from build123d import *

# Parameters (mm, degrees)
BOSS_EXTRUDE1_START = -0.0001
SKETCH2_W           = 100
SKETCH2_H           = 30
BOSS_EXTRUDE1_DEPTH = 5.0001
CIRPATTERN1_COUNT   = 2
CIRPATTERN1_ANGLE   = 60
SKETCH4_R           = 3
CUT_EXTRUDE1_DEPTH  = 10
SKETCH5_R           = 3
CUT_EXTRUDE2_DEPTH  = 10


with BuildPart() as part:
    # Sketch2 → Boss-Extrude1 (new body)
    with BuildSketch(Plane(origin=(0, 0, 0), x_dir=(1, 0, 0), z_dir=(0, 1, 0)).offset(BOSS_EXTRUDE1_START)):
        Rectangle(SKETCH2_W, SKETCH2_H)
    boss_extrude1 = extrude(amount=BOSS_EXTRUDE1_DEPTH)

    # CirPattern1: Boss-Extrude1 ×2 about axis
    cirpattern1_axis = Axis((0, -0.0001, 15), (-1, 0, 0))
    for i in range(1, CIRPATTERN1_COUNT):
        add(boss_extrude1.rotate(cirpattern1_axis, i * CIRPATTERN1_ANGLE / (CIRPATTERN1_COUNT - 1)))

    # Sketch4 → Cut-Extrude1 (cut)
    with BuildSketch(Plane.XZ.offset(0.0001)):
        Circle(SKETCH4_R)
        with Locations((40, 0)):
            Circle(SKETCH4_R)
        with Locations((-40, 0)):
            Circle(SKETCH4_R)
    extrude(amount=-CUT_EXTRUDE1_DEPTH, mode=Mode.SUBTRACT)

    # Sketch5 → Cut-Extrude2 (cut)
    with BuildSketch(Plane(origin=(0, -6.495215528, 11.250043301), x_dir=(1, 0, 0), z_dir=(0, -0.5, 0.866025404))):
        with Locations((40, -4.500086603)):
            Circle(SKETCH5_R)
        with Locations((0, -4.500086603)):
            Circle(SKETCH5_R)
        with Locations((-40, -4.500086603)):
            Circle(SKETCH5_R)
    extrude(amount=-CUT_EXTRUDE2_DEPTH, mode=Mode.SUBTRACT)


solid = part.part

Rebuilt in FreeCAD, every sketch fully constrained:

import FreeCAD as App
import Part
import Sketcher

V = App.Vector
Q = App.Units.Quantity


def add_polygon(sketch, points):
    """Adds a closed chain of lines whose ends are joined by coincident constraints."""
    first, n = sketch.GeometryCount, len(points)
    for a, b in zip(points, points[1:] + points[:1]):
        sketch.addGeometry(Part.LineSegment(App.Vector(*a, 0), App.Vector(*b, 0)), False)
    for i in range(n):
        sketch.addConstraint(Sketcher.Constraint("Coincident", first + i, 2, first + (i + 1) % n, 1))

doc = App.newDocument("Part")
params = doc.addObject("Spreadsheet::Sheet", "Params")
for row, (alias, value) in enumerate([
    ("sketch1_width", "100 mm"),
    ("sketch1_height", "30 mm"),
    ("pad1_length", "5.0001 mm"),
    ("sketch2_diameter", "6 mm"),
    ("pocket1_length", "10 mm"),
    ("sketch3_diameter", "6 mm"),
    ("pocket2_length", "10 mm"),
], start=1):
    params.set(f"A{row}", alias)
    params.set(f"B{row}", "=" + value)
    params.setAlias(f"B{row}", alias)

body = doc.addObject("PartDesign::Body", "Body")

# Sketch on XZ plane
sketch1 = doc.addObject("Sketcher::SketchObject", "Sketch")
body.addObject(sketch1)
sketch1.AttachmentSupport = (doc.XZ_Plane, [""])
sketch1.MapMode = "FlatFace"
sketch1.AttachmentOffset = App.Placement(V(0, 0, 0.0001), App.Rotation())
add_polygon(sketch1, [(-50, -15), (-50, 15), (50, 15), (50, -15)])  # lines 0-3
sketch1.addConstraint([
    Sketcher.Constraint("Vertical", 0),
    Sketcher.Constraint("Horizontal", 1),
    Sketcher.Constraint("Vertical", 2),
    Sketcher.Constraint("Horizontal", 3),
    Sketcher.Constraint("Symmetric", 0, 2, 2, 2, -1, 1),
    Sketcher.Constraint("DistanceX", 1, 1, 1, 2, Q("100 mm")),
    Sketcher.Constraint("DistanceY", 0, 1, 0, 2, Q("30 mm")),
])
sketch1.setExpression("Constraints[9]", "Params.sketch1_width")
sketch1.setExpression("Constraints[10]", "Params.sketch1_height")
pad1 = doc.addObject("PartDesign::Pad", "Pad")
body.addObject(pad1)
pad1.Profile = sketch1
pad1.setExpression("Length", "Params.pad1_length")
pad1.Reversed = True
doc.recompute()

datumline = doc.addObject("PartDesign::Line", "DatumLine")
body.addObject(datumline)
datumline.Placement = App.Placement(V(0, -0.0001, 15), App.Rotation(V(0, 0, 1), V(-1, 0, 0)))
polarpattern = doc.addObject("PartDesign::PolarPattern", "PolarPattern")
body.addObject(polarpattern)
polarpattern.Originals = [pad1]
polarpattern.Axis = (datumline, [""])
polarpattern.Angle = 60
polarpattern.Occurrences = 2
body.Tip = polarpattern

# Sketch on XZ plane
sketch2 = doc.addObject("Sketcher::SketchObject", "Sketch001")
body.addObject(sketch2)
sketch2.AttachmentSupport = (doc.XZ_Plane, [""])
sketch2.MapMode = "FlatFace"
sketch2.AttachmentOffset = App.Placement(V(0, 0, 0.0001), App.Rotation())
sketch2.addGeometry([
    Part.Circle(V(0, 0, 0), V(0, 0, 1), 3),
    Part.Circle(V(40, 0, 0), V(0, 0, 1), 3),
    Part.Circle(V(-40, 0, 0), V(0, 0, 1), 3),
], False)
sketch2.addConstraint([
    Sketcher.Constraint("Coincident", 0, 3, -1, 1),
    Sketcher.Constraint("Equal", 0, 1),
    Sketcher.Constraint("Equal", 1, 2),
    Sketcher.Constraint("Symmetric", 1, 3, 2, 3, -1, 1),
    Sketcher.Constraint("PointOnObject", 1, 3, -1),
    Sketcher.Constraint("Diameter", 0, Q("6 mm")),
    Sketcher.Constraint("DistanceX", -1, 1, 1, 3, Q("40 mm")),
])
sketch2.setExpression("Constraints[5]", "Params.sketch2_diameter")
pocket1 = doc.addObject("PartDesign::Pocket", "Pocket")
body.addObject(pocket1)
pocket1.Profile = sketch2
pocket1.setExpression("Length", "Params.pocket1_length")

# Sketch on an angled plane
sketch3 = doc.addObject("Sketcher::SketchObject", "Sketch002")
body.addObject(sketch3)
sketch3.Placement = App.Placement(V(0, -6.495216, 11.250043), App.Rotation(V(1, 0, 0), V(0, 0.866025404, 0.5), V(0, -0.5, 0.866025404), "ZXY"))
sketch3.addGeometry([
    Part.Circle(V(40, -4.5, 0), V(0, 0, 1), 3),
    Part.Circle(V(0, -4.5, 0), V(0, 0, 1), 3),
    Part.Circle(V(-40, -4.5, 0), V(0, 0, 1), 3),
], False)
sketch3.addConstraint([
    Sketcher.Constraint("Equal", 0, 1),
    Sketcher.Constraint("Equal", 1, 2),
    Sketcher.Constraint("Symmetric", 0, 3, 2, 3, -2),
    Sketcher.Constraint("PointOnObject", 1, 3, -2),
    Sketcher.Constraint("Horizontal", 0, 3, 1, 3),
    Sketcher.Constraint("Diameter", 0, Q("6 mm")),
    Sketcher.Constraint("DistanceX", -1, 1, 0, 3, Q("40 mm")),
    Sketcher.Constraint("DistanceY", 0, 3, -1, 1, Q("4.500087 mm")),
])
sketch3.setExpression("Constraints[5]", "Params.sketch3_diameter")
pocket2 = doc.addObject("PartDesign::Pocket", "Pocket001")
body.addObject(pocket2)
pocket2.Profile = sketch3
pocket2.setExpression("Length", "Params.pocket2_length")

doc.recompute()
